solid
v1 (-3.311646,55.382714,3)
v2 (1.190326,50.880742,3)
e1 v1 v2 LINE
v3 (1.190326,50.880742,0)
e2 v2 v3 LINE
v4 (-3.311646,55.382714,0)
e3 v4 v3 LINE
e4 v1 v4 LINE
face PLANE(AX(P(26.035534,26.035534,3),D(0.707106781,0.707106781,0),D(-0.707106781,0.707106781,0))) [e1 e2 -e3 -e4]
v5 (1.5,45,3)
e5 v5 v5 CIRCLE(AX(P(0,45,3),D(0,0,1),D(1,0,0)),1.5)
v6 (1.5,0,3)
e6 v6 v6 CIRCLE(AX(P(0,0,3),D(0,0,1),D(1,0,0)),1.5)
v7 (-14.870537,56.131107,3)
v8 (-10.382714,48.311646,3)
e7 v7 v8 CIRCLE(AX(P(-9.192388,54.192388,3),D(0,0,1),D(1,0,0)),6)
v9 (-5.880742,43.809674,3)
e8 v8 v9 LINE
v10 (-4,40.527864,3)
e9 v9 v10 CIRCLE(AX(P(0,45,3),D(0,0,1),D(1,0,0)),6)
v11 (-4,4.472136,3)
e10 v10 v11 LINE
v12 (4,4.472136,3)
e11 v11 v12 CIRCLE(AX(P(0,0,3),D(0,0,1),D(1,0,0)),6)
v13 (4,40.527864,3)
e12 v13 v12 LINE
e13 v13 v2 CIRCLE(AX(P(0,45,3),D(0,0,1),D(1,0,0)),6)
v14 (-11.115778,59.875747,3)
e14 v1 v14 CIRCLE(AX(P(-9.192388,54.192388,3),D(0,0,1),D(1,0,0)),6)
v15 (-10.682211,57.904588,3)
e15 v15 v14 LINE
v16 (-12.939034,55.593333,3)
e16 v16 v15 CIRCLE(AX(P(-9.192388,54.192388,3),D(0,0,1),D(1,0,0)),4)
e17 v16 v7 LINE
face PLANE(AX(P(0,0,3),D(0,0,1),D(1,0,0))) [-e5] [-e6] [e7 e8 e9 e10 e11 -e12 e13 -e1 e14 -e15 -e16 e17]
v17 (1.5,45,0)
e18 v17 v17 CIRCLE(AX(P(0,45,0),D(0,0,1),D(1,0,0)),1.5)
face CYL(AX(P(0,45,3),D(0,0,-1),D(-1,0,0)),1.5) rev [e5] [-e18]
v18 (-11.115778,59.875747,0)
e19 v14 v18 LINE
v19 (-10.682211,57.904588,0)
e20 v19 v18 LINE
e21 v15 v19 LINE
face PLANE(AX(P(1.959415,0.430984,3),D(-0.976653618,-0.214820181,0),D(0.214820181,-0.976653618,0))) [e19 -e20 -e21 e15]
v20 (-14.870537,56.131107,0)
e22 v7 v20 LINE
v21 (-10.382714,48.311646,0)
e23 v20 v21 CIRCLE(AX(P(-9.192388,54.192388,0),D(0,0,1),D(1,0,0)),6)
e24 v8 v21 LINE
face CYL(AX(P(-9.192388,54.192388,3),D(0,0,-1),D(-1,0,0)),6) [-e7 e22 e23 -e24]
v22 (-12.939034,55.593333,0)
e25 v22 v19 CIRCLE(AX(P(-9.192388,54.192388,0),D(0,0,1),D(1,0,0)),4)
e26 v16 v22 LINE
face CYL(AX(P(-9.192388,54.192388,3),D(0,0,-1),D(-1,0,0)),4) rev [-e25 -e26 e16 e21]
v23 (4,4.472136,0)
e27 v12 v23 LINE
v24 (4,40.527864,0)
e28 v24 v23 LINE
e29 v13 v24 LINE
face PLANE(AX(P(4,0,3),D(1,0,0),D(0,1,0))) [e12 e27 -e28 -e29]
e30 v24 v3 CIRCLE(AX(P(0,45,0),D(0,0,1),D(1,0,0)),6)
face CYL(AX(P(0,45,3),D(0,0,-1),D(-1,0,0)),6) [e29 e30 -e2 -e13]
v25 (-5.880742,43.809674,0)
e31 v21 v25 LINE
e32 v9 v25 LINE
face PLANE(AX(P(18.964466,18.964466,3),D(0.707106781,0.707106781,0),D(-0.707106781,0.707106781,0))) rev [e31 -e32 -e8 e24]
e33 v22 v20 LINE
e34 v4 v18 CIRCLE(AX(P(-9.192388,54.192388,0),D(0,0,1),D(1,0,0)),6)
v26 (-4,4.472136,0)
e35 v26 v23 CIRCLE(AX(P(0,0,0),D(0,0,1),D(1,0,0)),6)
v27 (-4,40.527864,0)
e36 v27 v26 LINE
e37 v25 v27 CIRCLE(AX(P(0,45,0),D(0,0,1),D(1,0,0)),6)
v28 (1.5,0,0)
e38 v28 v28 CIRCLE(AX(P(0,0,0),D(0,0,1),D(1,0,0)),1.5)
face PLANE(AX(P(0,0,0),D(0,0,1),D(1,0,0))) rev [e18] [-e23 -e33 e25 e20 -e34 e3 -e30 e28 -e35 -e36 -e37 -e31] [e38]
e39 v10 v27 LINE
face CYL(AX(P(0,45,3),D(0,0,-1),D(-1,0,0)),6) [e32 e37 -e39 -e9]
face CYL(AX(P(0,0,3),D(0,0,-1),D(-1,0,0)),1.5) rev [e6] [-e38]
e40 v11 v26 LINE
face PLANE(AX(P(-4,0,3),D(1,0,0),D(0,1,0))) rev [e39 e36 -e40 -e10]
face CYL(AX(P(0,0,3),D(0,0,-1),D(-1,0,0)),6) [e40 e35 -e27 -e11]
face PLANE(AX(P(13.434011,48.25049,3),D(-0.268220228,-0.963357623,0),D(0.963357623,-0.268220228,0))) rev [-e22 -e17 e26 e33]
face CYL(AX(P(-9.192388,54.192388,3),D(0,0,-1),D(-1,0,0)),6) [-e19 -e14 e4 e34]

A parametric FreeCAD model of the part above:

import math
import FreeCAD as App
import Part
import Sketcher
from FreeCAD import Vector
Q = App.Units.Quantity

doc = App.newDocument("Part")
params = doc.addObject("Spreadsheet::Sheet", "Params")
for row, (alias, value) in enumerate([
    ("sketch1_diameter", "3 mm"),
    ("sketch1_radius", "6 mm"),
    ("sketch1_radius2", "4 mm"),
    ("pad1_length", "3 mm"),
], start=1):
    params.set(f"A{row}", alias)
    params.set(f"B{row}", "=" + value)
    params.setAlias(f"B{row}", alias)

body = doc.addObject("PartDesign::Body", "Body")

sketch1 = body.newObject("Sketcher::SketchObject", "Sketch")
sketch1.AttachmentSupport = (doc.getObject("XY_Plane"), [""])
sketch1.MapMode = "FlatFace"
sketch1.addGeometry([
    Part.LineSegment(Vector(-4, 40.527864, 0), Vector(-4, 4.472136, 0)),
    Part.ArcOfCircle(Part.Circle(Vector(0, 0, 0), Vector(0, 0, 1), 6), math.radians(131.810315), math.radians(408.189685)),
    Part.LineSegment(Vector(4, 4.472136, 0), Vector(4, 40.527864, 0)),
    Part.ArcOfCircle(Part.Circle(Vector(0, 45, 0), Vector(0, 0, 1), 6), math.radians(-48.189685), math.radians(78.55731)),
    Part.LineSegment(Vector(1.190326, 50.880742, 0), Vector(-3.311646, 55.382714, 0)),
    Part.ArcOfCircle(Part.Circle(Vector(-9.192388, 54.192388, 0), Vector(0, 0, 1), 6), math.radians(11.44269), math.radians(108.697099)),
    Part.LineSegment(Vector(-11.115778, 59.875747, 0), Vector(-10.682211, 57.904588, 0)),
    Part.ArcOfCircle(Part.Circle(Vector(-9.192388, 54.192388, 0), Vector(0, 0, 1), 4), math.radians(159.498235), math.radians(471.867152)),
    Part.LineSegment(Vector(-12.939034, 55.593333, 0), Vector(-14.870537, 56.131107, 0)),
    Part.ArcOfCircle(Part.Circle(Vector(-9.192388, 54.192388, 0), Vector(0, 0, 1), 6), math.radians(161.148302), math.radians(258.55731)),
    Part.LineSegment(Vector(-10.382714, 48.311646, 0), Vector(-5.880742, 43.809674, 0)),
    Part.ArcOfCircle(Part.Circle(Vector(0, 45, 0), Vector(0, 0, 1), 6), math.radians(-168.55731), math.radians(-131.810315)),
    Part.Circle(Vector(0, 0, 0), Vector(0, 0, 1), 1.5),
    Part.Circle(Vector(0, 45, 0), Vector(0, 0, 1), 1.5),
], False)
sketch1.addConstraint([
    Sketcher.Constraint("Coincident", 0, 2, 1, 1),
    Sketcher.Constraint("Coincident", 1, 2, 2, 1),
    Sketcher.Constraint("Coincident", 2, 2, 3, 1),
    Sketcher.Constraint("Coincident", 3, 2, 4, 1),
    Sketcher.Constraint("Coincident", 4, 2, 5, 1),
    Sketcher.Constraint("Coincident", 5, 2, 6, 1),
    Sketcher.Constraint("Coincident", 6, 2, 7, 2),
    Sketcher.Constraint("Coincident", 7, 1, 8, 1),
    Sketcher.Constraint("Coincident", 8, 2, 9, 1),
    Sketcher.Constraint("Coincident", 9, 2, 10, 1),
    Sketcher.Constraint("Coincident", 10, 2, 11, 1),
    Sketcher.Constraint("Coincident", 11, 2, 0, 1),
    Sketcher.Constraint("Vertical", 0),
    Sketcher.Constraint("Vertical", 2),
    Sketcher.Constraint("Coincident", 1, 3, -1, 1),
    Sketcher.Constraint("Coincident", 12, 3, -1, 1),
    Sketcher.Constraint("Coincident", 7, 3, 5, 3),
    Sketcher.Constraint("Coincident", 9, 3, 5, 3),
    Sketcher.Constraint("Coincident", 11, 3, 3, 3),
    Sketcher.Constraint("Coincident", 13, 3, 3, 3),
    Sketcher.Constraint("Equal", 1, 3),
    Sketcher.Constraint("Equal", 3, 5),
    Sketcher.Constraint("Equal", 5, 9),
    Sketcher.Constraint("Equal", 9, 11),
    Sketcher.Constraint("Equal", 12, 13),
    Sketcher.Constraint("Symmetric", 2, 2, 11, 2, -2),
    Sketcher.Constraint("Parallel", 4, 10),
    Sketcher.Constraint("Equal", 4, 10),
    Sketcher.Constraint("Diameter", 12, 3.0),
    Sketcher.Constraint("Radius", 1, 6.0),
    Sketcher.Constraint("Radius", 7, 4.0),
    Sketcher.Constraint("Angle", 4, Q("135 deg")),
    Sketcher.Constraint("DistanceY", -1, 1, 3, 3, 45.0),
    Sketcher.Constraint("DistanceX", 0, 2, -1, 1, 4.0),
    Sketcher.Constraint("DistanceY", 5, 3, 6, 2, 3.7122),
    Sketcher.Constraint("Distance", 4, 6.36675),
    Sketcher.Constraint("Distance", 6, 2.018279),
    Sketcher.Constraint("Distance", 8, 2.00497),
    Sketcher.Constraint("DistanceX", 5, 3, -1, 1, 9.192388),
    Sketcher.Constraint("DistanceY", -1, 1, 5, 3, 54.192388),
    Sketcher.Constraint("DistanceY", 8, 2, 6, 2, 1.773481),
])
sketch1.setExpression("Constraints[28]", "Params.sketch1_diameter")
sketch1.setExpression("Constraints[29]", "Params.sketch1_radius")
sketch1.setExpression("Constraints[30]", "Params.sketch1_radius2")
pad1 = body.newObject("PartDesign::Pad", "Pad")
pad1.Profile = sketch1
pad1.setExpression("Length", "Params.pad1_length")

doc.recompute()
